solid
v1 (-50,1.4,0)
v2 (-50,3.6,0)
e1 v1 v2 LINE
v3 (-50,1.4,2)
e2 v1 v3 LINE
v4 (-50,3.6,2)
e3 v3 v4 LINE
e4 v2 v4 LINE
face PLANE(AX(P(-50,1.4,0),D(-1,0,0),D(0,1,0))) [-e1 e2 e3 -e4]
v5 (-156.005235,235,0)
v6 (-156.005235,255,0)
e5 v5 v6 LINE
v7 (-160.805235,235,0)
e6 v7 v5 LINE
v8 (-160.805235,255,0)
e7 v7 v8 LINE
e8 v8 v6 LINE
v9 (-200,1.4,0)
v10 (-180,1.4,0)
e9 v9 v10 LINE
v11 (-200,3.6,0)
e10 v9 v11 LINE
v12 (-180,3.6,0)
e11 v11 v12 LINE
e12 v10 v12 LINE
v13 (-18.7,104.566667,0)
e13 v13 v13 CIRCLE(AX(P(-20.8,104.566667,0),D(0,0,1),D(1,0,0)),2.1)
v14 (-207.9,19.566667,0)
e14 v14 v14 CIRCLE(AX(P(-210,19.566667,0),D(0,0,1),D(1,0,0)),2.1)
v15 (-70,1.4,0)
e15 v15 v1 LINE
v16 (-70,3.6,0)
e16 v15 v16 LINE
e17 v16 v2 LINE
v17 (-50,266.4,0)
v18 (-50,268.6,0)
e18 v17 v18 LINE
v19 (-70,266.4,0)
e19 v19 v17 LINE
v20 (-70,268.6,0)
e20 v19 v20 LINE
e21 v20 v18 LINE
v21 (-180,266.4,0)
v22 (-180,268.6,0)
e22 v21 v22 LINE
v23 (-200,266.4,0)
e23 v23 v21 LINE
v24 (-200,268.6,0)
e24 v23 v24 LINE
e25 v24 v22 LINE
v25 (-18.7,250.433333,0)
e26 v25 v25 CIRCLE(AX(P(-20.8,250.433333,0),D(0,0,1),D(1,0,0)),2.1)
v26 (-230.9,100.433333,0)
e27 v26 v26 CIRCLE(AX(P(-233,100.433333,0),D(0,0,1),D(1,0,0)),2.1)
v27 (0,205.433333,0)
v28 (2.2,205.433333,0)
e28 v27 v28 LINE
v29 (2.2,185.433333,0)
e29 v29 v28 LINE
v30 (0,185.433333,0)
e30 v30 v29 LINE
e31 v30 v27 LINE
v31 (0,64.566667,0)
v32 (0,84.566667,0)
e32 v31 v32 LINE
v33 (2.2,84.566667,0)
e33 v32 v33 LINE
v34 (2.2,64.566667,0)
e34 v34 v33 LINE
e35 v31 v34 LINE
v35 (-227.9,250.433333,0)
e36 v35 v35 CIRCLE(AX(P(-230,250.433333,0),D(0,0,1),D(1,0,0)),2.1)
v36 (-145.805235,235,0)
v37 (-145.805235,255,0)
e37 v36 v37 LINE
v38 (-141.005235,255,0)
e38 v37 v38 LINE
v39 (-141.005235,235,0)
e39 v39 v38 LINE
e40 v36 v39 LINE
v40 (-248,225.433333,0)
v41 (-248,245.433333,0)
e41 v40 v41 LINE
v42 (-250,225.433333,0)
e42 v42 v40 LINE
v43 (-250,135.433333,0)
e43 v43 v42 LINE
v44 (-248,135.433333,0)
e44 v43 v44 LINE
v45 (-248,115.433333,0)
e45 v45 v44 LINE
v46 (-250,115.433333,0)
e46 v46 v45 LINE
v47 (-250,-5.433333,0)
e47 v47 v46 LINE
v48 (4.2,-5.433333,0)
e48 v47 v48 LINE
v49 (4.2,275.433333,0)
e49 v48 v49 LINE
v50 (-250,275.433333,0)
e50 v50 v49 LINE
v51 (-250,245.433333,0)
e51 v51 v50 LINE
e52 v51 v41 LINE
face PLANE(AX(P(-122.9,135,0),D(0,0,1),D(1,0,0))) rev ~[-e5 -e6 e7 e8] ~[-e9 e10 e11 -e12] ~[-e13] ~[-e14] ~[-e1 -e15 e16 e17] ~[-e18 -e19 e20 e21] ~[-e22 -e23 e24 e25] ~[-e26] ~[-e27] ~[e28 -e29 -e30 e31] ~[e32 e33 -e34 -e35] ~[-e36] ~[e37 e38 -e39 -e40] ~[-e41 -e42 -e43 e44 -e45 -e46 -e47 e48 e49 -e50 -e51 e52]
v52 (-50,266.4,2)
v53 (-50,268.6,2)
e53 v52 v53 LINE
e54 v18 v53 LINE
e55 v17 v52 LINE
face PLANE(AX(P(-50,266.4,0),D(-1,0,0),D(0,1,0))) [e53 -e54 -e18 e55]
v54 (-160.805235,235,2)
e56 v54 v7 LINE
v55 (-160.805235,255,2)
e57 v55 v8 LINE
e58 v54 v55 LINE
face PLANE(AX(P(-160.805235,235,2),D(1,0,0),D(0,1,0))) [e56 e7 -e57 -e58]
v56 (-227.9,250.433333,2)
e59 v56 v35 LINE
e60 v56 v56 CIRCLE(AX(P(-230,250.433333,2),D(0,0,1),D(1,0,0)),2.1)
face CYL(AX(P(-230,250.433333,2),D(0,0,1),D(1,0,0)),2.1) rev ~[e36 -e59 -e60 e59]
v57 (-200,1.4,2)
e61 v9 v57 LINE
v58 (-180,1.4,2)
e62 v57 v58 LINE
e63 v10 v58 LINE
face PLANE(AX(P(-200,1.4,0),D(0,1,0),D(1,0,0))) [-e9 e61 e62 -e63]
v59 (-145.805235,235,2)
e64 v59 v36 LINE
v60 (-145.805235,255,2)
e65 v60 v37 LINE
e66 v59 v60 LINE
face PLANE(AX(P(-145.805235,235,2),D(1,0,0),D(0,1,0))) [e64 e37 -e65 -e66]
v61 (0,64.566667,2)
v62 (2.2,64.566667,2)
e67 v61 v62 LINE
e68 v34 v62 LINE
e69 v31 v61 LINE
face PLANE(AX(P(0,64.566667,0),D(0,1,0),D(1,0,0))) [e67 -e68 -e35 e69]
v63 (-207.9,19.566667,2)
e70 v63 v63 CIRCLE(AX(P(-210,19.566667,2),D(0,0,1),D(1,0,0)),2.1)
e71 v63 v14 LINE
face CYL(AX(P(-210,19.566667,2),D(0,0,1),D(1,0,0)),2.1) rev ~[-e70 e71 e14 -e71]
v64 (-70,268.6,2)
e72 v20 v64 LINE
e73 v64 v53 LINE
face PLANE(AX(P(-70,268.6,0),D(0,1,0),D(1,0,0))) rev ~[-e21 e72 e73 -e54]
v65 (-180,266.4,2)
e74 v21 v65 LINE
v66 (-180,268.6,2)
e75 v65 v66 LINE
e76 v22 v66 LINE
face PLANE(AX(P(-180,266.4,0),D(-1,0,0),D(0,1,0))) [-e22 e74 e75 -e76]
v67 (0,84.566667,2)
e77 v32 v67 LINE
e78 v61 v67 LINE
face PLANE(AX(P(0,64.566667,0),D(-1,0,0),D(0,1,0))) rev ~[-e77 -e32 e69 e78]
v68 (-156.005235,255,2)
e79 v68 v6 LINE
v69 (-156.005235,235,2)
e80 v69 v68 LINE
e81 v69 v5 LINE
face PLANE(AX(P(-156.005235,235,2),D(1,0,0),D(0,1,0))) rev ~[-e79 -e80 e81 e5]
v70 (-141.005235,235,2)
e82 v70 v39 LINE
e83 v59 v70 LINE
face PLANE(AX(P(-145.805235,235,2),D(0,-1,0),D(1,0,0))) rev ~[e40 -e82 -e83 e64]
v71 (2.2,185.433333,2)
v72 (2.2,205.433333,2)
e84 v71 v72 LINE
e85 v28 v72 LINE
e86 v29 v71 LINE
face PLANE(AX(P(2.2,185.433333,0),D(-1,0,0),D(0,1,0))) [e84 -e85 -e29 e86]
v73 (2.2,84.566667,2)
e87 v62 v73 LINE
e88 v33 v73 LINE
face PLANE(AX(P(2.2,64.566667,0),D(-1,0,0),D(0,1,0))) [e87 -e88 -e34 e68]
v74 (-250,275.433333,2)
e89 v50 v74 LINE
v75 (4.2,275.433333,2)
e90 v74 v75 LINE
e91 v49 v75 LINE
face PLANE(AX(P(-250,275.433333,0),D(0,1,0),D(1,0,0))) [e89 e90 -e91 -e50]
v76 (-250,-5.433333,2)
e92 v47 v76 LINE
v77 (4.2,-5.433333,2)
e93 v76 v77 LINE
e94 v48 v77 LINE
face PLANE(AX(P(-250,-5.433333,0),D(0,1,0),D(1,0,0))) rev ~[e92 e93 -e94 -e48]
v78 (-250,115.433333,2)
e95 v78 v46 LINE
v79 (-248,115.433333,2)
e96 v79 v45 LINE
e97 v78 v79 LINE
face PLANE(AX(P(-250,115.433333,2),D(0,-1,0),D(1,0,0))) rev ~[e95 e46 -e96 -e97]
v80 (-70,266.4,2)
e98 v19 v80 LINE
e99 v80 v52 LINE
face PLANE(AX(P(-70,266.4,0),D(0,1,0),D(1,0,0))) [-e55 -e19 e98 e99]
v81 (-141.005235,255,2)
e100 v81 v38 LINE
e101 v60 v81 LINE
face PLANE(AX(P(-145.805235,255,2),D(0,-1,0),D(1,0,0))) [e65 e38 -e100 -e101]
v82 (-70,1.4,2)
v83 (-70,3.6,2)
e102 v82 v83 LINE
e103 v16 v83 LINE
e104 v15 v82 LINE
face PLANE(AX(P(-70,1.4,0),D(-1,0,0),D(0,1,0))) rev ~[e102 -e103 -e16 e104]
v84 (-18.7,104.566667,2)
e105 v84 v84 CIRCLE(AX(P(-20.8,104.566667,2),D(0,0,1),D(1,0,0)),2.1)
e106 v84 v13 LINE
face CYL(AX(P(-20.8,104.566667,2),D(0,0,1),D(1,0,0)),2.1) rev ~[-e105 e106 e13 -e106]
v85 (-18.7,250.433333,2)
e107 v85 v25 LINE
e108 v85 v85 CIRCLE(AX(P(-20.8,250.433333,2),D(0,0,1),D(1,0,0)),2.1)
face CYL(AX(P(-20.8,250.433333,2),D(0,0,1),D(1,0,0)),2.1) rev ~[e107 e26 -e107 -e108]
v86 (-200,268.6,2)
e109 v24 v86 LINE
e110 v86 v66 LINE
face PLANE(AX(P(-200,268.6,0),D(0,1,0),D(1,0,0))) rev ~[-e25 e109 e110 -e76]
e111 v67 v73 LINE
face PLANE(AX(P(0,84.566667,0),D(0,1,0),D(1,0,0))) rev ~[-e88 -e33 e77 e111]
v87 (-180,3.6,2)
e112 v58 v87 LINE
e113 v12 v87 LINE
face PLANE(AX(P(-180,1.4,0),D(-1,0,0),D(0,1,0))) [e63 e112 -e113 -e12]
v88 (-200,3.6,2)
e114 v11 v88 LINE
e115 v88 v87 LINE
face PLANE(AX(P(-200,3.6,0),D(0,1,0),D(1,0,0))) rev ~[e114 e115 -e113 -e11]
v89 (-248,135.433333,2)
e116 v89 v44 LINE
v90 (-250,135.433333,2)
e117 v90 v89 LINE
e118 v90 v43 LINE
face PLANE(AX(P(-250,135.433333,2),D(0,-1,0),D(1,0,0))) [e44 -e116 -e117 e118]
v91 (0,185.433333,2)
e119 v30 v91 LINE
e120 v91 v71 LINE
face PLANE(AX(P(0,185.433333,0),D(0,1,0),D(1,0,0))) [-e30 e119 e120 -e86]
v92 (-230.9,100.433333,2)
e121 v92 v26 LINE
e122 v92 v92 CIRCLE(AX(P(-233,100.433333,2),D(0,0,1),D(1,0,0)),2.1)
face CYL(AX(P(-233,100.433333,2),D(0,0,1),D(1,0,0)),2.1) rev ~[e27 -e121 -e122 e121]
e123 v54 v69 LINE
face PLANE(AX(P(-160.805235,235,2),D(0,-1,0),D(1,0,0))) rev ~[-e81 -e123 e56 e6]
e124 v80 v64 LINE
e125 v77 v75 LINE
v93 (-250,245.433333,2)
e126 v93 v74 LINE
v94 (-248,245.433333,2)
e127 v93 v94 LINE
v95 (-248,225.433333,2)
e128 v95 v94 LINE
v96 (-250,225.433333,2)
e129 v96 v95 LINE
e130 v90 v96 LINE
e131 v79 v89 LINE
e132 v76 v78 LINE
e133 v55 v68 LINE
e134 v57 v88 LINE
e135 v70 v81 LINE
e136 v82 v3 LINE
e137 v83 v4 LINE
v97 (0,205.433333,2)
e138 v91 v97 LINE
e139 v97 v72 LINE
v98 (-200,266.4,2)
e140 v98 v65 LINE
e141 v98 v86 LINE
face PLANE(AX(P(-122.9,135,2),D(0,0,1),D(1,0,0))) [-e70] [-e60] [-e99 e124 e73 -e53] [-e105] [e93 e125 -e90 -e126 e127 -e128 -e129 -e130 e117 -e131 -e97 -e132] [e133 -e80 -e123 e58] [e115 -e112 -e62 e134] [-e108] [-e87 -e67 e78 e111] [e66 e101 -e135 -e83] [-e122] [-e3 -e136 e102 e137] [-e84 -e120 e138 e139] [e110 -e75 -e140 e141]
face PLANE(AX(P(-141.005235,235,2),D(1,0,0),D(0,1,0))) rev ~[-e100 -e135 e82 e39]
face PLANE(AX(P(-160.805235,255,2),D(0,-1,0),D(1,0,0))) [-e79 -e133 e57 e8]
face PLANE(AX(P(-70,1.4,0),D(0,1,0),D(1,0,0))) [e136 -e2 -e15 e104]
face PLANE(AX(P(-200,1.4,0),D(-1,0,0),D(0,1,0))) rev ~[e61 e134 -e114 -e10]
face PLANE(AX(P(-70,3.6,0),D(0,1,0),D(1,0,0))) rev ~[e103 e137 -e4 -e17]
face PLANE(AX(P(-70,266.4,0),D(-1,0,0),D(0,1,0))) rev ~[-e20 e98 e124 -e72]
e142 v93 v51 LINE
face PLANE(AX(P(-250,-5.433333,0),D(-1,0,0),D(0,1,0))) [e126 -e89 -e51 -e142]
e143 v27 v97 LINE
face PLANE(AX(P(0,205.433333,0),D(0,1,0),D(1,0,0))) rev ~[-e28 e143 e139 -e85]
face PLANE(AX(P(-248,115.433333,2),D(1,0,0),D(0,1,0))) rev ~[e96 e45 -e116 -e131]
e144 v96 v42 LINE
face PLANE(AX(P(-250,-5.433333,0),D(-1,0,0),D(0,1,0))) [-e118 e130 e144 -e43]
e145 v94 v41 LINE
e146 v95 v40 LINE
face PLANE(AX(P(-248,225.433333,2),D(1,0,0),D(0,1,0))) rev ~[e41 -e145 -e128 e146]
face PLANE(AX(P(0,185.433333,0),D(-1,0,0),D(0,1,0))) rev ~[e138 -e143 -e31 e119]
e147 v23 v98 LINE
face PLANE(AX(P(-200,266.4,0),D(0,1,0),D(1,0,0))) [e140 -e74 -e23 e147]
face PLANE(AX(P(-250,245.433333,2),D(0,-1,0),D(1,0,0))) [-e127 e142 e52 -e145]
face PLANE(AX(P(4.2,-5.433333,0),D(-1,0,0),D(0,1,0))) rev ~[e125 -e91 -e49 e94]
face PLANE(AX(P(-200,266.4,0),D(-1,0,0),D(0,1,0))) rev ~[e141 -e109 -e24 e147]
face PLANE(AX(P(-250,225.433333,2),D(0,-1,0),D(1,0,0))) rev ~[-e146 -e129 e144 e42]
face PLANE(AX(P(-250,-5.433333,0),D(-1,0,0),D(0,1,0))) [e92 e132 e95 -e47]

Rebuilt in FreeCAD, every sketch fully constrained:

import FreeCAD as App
import Part
import Sketcher
from FreeCAD import Vector


def add_polygon(sketch, points):
    """Adds a closed chain of lines whose ends are joined by coincident constraints."""
    first, n = sketch.GeometryCount, len(points)
    for a, b in zip(points, points[1:] + points[:1]):
        sketch.addGeometry(Part.LineSegment(App.Vector(*a, 0), App.Vector(*b, 0)), False)
    for i in range(n):
        sketch.addConstraint(Sketcher.Constraint("Coincident", first + i, 2, first + (i + 1) % n, 1))

doc = App.newDocument("Part")
body = doc.addObject("PartDesign::Body", "Body")

sketch1 = body.newObject("Sketcher::SketchObject", "Sketch")
sketch1.AttachmentSupport = (doc.getObject("XY_Plane"), [""])
sketch1.MapMode = "FlatFace"
add_polygon(sketch1, [(-250, 275.4), (-250, -5.4), (4.2, -5.4), (4.2, 275.4)])
add_polygon(sketch1, [(-180, 1.4), (-200, 1.4), (-200, 3.6), (-180, 3.6)])
add_polygon(sketch1, [(-50, 1.4), (-70, 1.4), (-70, 3.6), (-50, 3.6)])
add_polygon(sketch1, [(2.2, 64.6), (0, 64.6), (0, 84.6), (2.2, 84.6)])
add_polygon(sketch1, [(-180, 266.4), (-200, 266.4), (-200, 268.6), (-180, 268.6)])
add_polygon(sketch1, [(2.2, 185.4), (0, 185.4), (0, 205.4), (2.2, 205.4)])
add_polygon(sketch1, [(-50, 266.4), (-70, 266.4), (-70, 268.6), (-50, 268.6)])
sketch1.addConstraint(Sketcher.Constraint("Vertical", 0))
sketch1.addConstraint(Sketcher.Constraint("Horizontal", 1))
sketch1.addConstraint(Sketcher.Constraint("Vertical", 2))
sketch1.addConstraint(Sketcher.Constraint("Horizontal", 3))
sketch1.addConstraint(Sketcher.Constraint("Horizontal", 4))
sketch1.addConstraint(Sketcher.Constraint("Vertical", 5))
sketch1.addConstraint(Sketcher.Constraint("Horizontal", 6))
sketch1.addConstraint(Sketcher.Constraint("Vertical", 7))
sketch1.addConstraint(Sketcher.Constraint("Horizontal", 8))
sketch1.addConstraint(Sketcher.Constraint("Vertical", 9))
sketch1.addConstraint(Sketcher.Constraint("Horizontal", 10))
sketch1.addConstraint(Sketcher.Constraint("Vertical", 11))
sketch1.addConstraint(Sketcher.Constraint("Horizontal", 12))
sketch1.addConstraint(Sketcher.Constraint("Vertical", 13))
sketch1.addConstraint(Sketcher.Constraint("Horizontal", 14))
sketch1.addConstraint(Sketcher.Constraint("Vertical", 15))
sketch1.addConstraint(Sketcher.Constraint("Horizontal", 16))
sketch1.addConstraint(Sketcher.Constraint("Vertical", 17))
sketch1.addConstraint(Sketcher.Constraint("Horizontal", 18))
sketch1.addConstraint(Sketcher.Constraint("Vertical", 19))
sketch1.addConstraint(Sketcher.Constraint("Horizontal", 20))
sketch1.addConstraint(Sketcher.Constraint("Vertical", 21))
sketch1.addConstraint(Sketcher.Constraint("Horizontal", 22))
sketch1.addConstraint(Sketcher.Constraint("Vertical", 23))
sketch1.addConstraint(Sketcher.Constraint("Horizontal", 24))
sketch1.addConstraint(Sketcher.Constraint("Vertical", 25))
sketch1.addConstraint(Sketcher.Constraint("Horizontal", 26))
sketch1.addConstraint(Sketcher.Constraint("Vertical", 27))
sketch1.addConstraint(Sketcher.Constraint("PointOnObject", 12, 2, -2))
sketch1.addConstraint(Sketcher.Constraint("PointOnObject", 20, 2, -2))
sketch1.addConstraint(Sketcher.Constraint("Horizontal", 7, 2, 8, 2))
sketch1.addConstraint(Sketcher.Constraint("Horizontal", 6, 2, 9, 2))
sketch1.addConstraint(Sketcher.Constraint("Horizontal", 19, 2, 24, 2))
sketch1.addConstraint(Sketcher.Constraint("Horizontal", 18, 2, 25, 2))
sketch1.addConstraint(Sketcher.Constraint("Vertical", 5, 2, 16, 2))
sketch1.addConstraint(Sketcher.Constraint("Vertical", 7, 2, 18, 2))
sketch1.addConstraint(Sketcher.Constraint("Vertical", 15, 2, 22, 2))
sketch1.addConstraint(Sketcher.Constraint("Vertical", 9, 2, 24, 2))
sketch1.addConstraint(Sketcher.Constraint("Vertical", 11, 2, 26, 2))
sketch1.addConstraint(Sketcher.Constraint("Equal", 6, 8))
sketch1.addConstraint(Sketcher.Constraint("Equal", 22, 5))
sketch1.addConstraint(Sketcher.Constraint("Equal", 26, 13))
sketch1.addConstraint(Sketcher.Constraint("Equal", 11, 17))
sketch1.addConstraint(Sketcher.Constraint("Equal", 15, 21))
sketch1.addConstraint(Sketcher.Constraint("DistanceX", 4, 2, 4, 1, 20.0))
sketch1.addConstraint(Sketcher.Constraint("DistanceX", 1, 1, 1, 2, 254.2))
sketch1.addConstraint(Sketcher.Constraint("DistanceX", 12, 2, 12, 1, 2.2))
sketch1.addConstraint(Sketcher.Constraint("DistanceX", 0, 2, -1, 1, 250.0))
sketch1.addConstraint(Sketcher.Constraint("DistanceX", 4, 2, -1, 1, 200.0))
sketch1.addConstraint(Sketcher.Constraint("DistanceX", 8, 2, -1, 1, 70.0))
sketch1.addConstraint(Sketcher.Constraint("DistanceY", 1, 2, 12, 2, 70.0))
sketch1.addConstraint(Sketcher.Constraint("DistanceY", 4, 2, 16, 2, 265.0))
sketch1.addConstraint(Sketcher.Constraint("DistanceY", 20, 2, 2, 2, 90.0))
sketch1.addConstraint(Sketcher.Constraint("DistanceY", -1, 1, 4, 2, 1.4))
sketch1.addConstraint(Sketcher.Constraint("DistanceY", 0, 2, 0, 1, 280.866667))
sketch1.addConstraint(Sketcher.Constraint("DistanceY", 0, 2, -1, 1, 5.433333))
pad1 = body.newObject("PartDesign::Pad", "Pad")
pad1.Profile = sketch1
pad1.Length = 2

sketch2 = body.newObject("Sketcher::SketchObject", "Sketch001")
sketch2.AttachmentSupport = (doc.getObject("XY_Plane"), [""])
sketch2.MapMode = "FlatFace"
sketch2.AttachmentOffset = App.Placement(Vector(0, 0, 2), App.Rotation())
add_polygon(sketch2, [(-145.8, 255), (-145.8, 235), (-141, 235), (-141, 255)])
add_polygon(sketch2, [(-160.8, 255), (-160.8, 235), (-156, 235), (-156, 255)])
sketch2.addConstraint(Sketcher.Constraint("Vertical", 0))
sketch2.addConstraint(Sketcher.Constraint("Horizontal", 1))
sketch2.addConstraint(Sketcher.Constraint("Vertical", 2))
sketch2.addConstraint(Sketcher.Constraint("Horizontal", 3))
sketch2.addConstraint(Sketcher.Constraint("Vertical", 4))
sketch2.addConstraint(Sketcher.Constraint("Horizontal", 5))
sketch2.addConstraint(Sketcher.Constraint("Vertical", 6))
sketch2.addConstraint(Sketcher.Constraint("Horizontal", 7))
sketch2.addConstraint(Sketcher.Constraint("Horizontal", 1, 2, 4, 2))
sketch2.addConstraint(Sketcher.Constraint("Horizontal", 3, 2, 6, 2))
sketch2.addConstraint(Sketcher.Constraint("Equal", 3, 5))
sketch2.addConstraint(Sketcher.Constraint("DistanceY", 0, 2, 0, 1, 20.0))
sketch2.addConstraint(Sketcher.Constraint("DistanceX", 1, 1, 1, 2, 4.8))
sketch2.addConstraint(Sketcher.Constraint("DistanceY", -1, 1, 0, 2, 235.0))
sketch2.addConstraint(Sketcher.Constraint("DistanceX", 4, 2, 0, 2, 15.0))
sketch2.addConstraint(Sketcher.Constraint("DistanceX", 0, 2, -1, 1, 145.805235))
pocket1 = body.newObject("PartDesign::Pocket", "Pocket")
pocket1.Profile = sketch2
pocket1.Length = 5

sketch3 = body.newObject("Sketcher::SketchObject", "Sketch002")
sketch3.AttachmentSupport = (doc.getObject("XY_Plane"), [""])
sketch3.MapMode = "FlatFace"
sketch3.AttachmentOffset = App.Placement(Vector(0, 0, 2), App.Rotation())
sketch3.addGeometry(Part.Circle(Vector(-230, 250.4, 0), Vector(0, 0, 1), 2.1), False)
sketch3.addGeometry(Part.Circle(Vector(-20.8, 250.4, 0), Vector(0, 0, 1), 2.1), False)
sketch3.addConstraint(Sketcher.Constraint("Equal", 0, 1))
sketch3.addConstraint(Sketcher.Constraint("Horizontal", 0, 3, 1, 3))
sketch3.addConstraint(Sketcher.Constraint("Diameter", 0, 4.2))
sketch3.addConstraint(Sketcher.Constraint("DistanceX", 0, 3, -1, 1, 230.0))
sketch3.addConstraint(Sketcher.Constraint("DistanceX", 1, 3, -1, 1, 20.8))
sketch3.addConstraint(Sketcher.Constraint("DistanceY", -1, 1, 0, 3, 250.433333))
pocket2 = body.newObject("PartDesign::Pocket", "Pocket001")
pocket2.Profile = sketch3
pocket2.Length = 5

sketch4 = body.newObject("Sketcher::SketchObject", "Sketch003")
sketch4.AttachmentSupport = (doc.getObject("XY_Plane"), [""])
sketch4.MapMode = "FlatFace"
sketch4.AttachmentOffset = App.Placement(Vector(0, 0, 2), App.Rotation())
sketch4.addGeometry(Part.Circle(Vector(-210, 19.6, 0), Vector(0, 0, 1), 2.1), False)
sketch4.addConstraint(Sketcher.Constraint("Diameter", 0, 4.2))
sketch4.addConstraint(Sketcher.Constraint("DistanceX", 0, 3, -1, 1, 210.0))
sketch4.addConstraint(Sketcher.Constraint("DistanceY", -1, 1, 0, 3, 19.566667))
pocket3 = body.newObject("PartDesign::Pocket", "Pocket002")
pocket3.Profile = sketch4
pocket3.Length = 5

sketch5 = body.newObject("Sketcher::SketchObject", "Sketch004")
sketch5.AttachmentSupport = (doc.getObject("XY_Plane"), [""])
sketch5.MapMode = "FlatFace"
sketch5.AttachmentOffset = App.Placement(Vector(0, 0, 2), App.Rotation())
sketch5.addGeometry(Part.Circle(Vector(-20.8, 104.6, 0), Vector(0, 0, 1), 2.1), False)
sketch5.addConstraint(Sketcher.Constraint("Diameter", 0, 4.2))
sketch5.addConstraint(Sketcher.Constraint("DistanceX", 0, 3, -1, 1, 20.8))
sketch5.addConstraint(Sketcher.Constraint("DistanceY", -1, 1, 0, 3, 104.566667))
pocket4 = body.newObject("PartDesign::Pocket", "Pocket003")
pocket4.Profile = sketch5
pocket4.Length = 5

sketch6 = body.newObject("Sketcher::SketchObject", "Sketch005")
sketch6.AttachmentSupport = (doc.getObject("XY_Plane"), [""])
sketch6.MapMode = "FlatFace"
sketch6.AttachmentOffset = App.Placement(Vector(0, 0, 2), App.Rotation())
sketch6.addGeometry(Part.Circle(Vector(-233, 100.4, 0), Vector(0, 0, 1), 2.1), False)
sketch6.addConstraint(Sketcher.Constraint("Diameter", 0, 4.2))
sketch6.addConstraint(Sketcher.Constraint("DistanceX", 0, 3, -1, 1, 233.0))
sketch6.addConstraint(Sketcher.Constraint("DistanceY", -1, 1, 0, 3, 100.433333))
pocket5 = body.newObject("PartDesign::Pocket", "Pocket004")
pocket5.Profile = sketch6
pocket5.Length = 5

sketch7 = body.newObject("Sketcher::SketchObject", "Sketch006")
sketch7.AttachmentSupport = (doc.getObject("XY_Plane"), [""])
sketch7.MapMode = "FlatFace"
sketch7.AttachmentOffset = App.Placement(Vector(0, 0, 2), App.Rotation())
add_polygon(sketch7, [(-250, 245.4), (-250, 225.4), (-248, 225.4), (-248, 245.4)])
add_polygon(sketch7, [(-250, 135.4), (-250, 115.4), (-248, 115.4), (-248, 135.4)])
sketch7.addConstraint(Sketcher.Constraint("Vertical", 0))
sketch7.addConstraint(Sketcher.Constraint("Horizontal", 1))
sketch7.addConstraint(Sketcher.Constraint("Vertical", 2))
sketch7.addConstraint(Sketcher.Constraint("Horizontal", 3))
sketch7.addConstraint(Sketcher.Constraint("Vertical", 4))
sketch7.addConstraint(Sketcher.Constraint("Horizontal", 5))
sketch7.addConstraint(Sketcher.Constraint("Vertical", 6))
sketch7.addConstraint(Sketcher.Constraint("Horizontal", 7))
sketch7.addConstraint(Sketcher.Constraint("Vertical", 3, 2, 4, 2))
sketch7.addConstraint(Sketcher.Constraint("Vertical", 2, 2, 5, 2))
sketch7.addConstraint(Sketcher.Constraint("Equal", 2, 4))
sketch7.addConstraint(Sketcher.Constraint("DistanceX", 1, 1, 1, 2, 2.0))
sketch7.addConstraint(Sketcher.Constraint("DistanceY", 0, 2, 0, 1, 20.0))
sketch7.addConstraint(Sketcher.Constraint("DistanceX", 0, 2, -1, 1, 250.0))
sketch7.addConstraint(Sketcher.Constraint("DistanceY", 4, 2, 0, 2, 110.0))
sketch7.addConstraint(Sketcher.Constraint("DistanceY", -1, 1, 0, 2, 225.433333))
pocket6 = body.newObject("PartDesign::Pocket", "Pocket005")
pocket6.Profile = sketch7
pocket6.Length = 10

doc.recompute()
